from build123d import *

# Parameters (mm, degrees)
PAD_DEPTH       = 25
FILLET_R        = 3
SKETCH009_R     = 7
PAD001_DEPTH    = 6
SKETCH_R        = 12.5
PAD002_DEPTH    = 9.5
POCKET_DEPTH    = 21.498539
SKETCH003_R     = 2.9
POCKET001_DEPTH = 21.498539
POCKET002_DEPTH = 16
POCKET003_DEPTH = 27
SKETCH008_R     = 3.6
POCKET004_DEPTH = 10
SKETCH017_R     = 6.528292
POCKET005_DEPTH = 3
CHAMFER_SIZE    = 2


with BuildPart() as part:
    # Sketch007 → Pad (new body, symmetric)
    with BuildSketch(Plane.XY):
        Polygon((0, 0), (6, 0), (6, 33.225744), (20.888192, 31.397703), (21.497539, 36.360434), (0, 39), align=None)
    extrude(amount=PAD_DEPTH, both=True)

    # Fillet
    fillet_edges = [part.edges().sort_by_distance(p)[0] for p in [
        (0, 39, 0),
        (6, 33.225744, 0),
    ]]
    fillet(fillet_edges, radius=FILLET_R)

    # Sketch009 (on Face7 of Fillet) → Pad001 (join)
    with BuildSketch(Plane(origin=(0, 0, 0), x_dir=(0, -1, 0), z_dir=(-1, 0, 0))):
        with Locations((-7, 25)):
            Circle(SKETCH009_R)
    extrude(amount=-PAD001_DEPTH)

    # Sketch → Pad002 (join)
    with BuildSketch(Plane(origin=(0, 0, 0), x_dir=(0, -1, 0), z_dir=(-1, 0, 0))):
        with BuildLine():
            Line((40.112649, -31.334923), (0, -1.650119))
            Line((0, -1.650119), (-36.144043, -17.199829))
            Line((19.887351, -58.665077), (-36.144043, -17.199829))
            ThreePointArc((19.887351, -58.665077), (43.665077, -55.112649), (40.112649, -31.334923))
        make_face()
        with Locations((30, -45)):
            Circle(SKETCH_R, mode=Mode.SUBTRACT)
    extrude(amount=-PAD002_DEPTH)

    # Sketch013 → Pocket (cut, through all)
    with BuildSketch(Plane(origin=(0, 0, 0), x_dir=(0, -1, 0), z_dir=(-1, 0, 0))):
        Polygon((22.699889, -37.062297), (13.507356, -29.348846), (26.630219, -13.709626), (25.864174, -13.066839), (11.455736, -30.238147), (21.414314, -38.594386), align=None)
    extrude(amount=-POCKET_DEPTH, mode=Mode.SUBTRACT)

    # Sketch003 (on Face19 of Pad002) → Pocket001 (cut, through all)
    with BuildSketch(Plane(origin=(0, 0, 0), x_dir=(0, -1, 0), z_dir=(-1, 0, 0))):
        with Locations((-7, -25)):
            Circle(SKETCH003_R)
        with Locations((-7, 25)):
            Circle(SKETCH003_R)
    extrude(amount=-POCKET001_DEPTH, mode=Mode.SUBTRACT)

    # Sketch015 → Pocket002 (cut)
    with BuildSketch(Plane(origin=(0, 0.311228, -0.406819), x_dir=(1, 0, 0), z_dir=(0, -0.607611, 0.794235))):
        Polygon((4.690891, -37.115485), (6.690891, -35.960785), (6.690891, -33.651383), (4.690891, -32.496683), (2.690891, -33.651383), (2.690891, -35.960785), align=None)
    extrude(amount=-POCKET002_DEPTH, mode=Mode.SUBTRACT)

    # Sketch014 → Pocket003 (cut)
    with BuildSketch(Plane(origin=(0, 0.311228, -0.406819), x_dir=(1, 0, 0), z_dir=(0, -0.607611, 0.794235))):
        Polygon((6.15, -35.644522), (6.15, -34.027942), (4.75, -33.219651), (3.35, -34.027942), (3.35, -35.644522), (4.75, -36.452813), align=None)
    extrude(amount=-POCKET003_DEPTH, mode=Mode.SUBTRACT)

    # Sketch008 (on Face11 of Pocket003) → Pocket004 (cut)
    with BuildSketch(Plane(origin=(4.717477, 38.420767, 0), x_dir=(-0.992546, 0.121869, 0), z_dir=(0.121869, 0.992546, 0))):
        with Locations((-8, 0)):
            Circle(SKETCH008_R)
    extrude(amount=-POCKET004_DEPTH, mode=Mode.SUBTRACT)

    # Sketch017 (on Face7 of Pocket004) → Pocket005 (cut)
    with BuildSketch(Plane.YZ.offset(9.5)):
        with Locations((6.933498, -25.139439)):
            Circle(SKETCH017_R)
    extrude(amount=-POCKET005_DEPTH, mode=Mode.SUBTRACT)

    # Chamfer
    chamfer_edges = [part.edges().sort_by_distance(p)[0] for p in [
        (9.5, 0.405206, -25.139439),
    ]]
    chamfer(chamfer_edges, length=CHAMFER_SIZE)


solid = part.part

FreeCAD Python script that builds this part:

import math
import FreeCAD as App
import Part
import Sketcher

V = App.Vector
Q = App.Units.Quantity


def edges_at(feature, points):
    """Names of the edges that pass closest to the given points."""
    edges = feature.Shape.Edges
    near = lambda p: min(range(len(edges)), key=lambda i: edges[i].distToShape(Part.Vertex(*p))[0])
    return sorted({f"Edge{near(p) + 1}" for p in points})


def add_polygon(sketch, points):
    """Adds a closed chain of lines whose ends are joined by coincident constraints."""
    first, n = sketch.GeometryCount, len(points)
    for a, b in zip(points, points[1:] + points[:1]):
        sketch.addGeometry(Part.LineSegment(App.Vector(*a, 0), App.Vector(*b, 0)), False)
    for i in range(n):
        sketch.addConstraint(Sketcher.Constraint("Coincident", first + i, 2, first + (i + 1) % n, 1))

doc = App.newDocument("Part")
params = doc.addObject("Spreadsheet::Sheet", "Params")
for row, (alias, value) in enumerate([
    ("sketch1_width", "6 mm"),
    ("sketch1_height", "39 mm"),
    ("sketch1_length", "15 mm"),
    ("sketch1_length2", "5 mm"),
    ("pad1_length", "50 mm"),
    ("fillet_radius", "3 mm"),
    ("sketch2_diameter", "14 mm"),
    ("pad2_length", "6 mm"),
    ("sketch3_diameter", "25 mm"),
    ("sketch3_radius", "17 mm"),
    ("pad3_length", "9.5 mm"),
    ("sketch4_length", "12 mm"),
    ("sketch4_length2", "1 mm"),
    ("sketch4_length3", "2 mm"),
    ("sketch5_diameter", "5.8 mm"),
    ("pocket3_length", "16 mm"),
    ("pocket4_length", "27 mm"),
    ("sketch8_diameter", "7.2 mm"),
    ("pocket5_length", "10 mm"),
    ("pocket6_length", "3 mm"),
    ("chamfer_size", "2 mm"),
], start=1):
    params.set(f"A{row}", alias)
    params.set(f"B{row}", "=" + value)
    params.setAlias(f"B{row}", alias)

body = doc.addObject("PartDesign::Body", "Body")

# Sketch on XY plane
sketch1 = body.newObject("Sketcher::SketchObject", "Sketch")
sketch1.AttachmentSupport = (doc.getObject("XY_Plane"), [""])
sketch1.MapMode = "FlatFace"
add_polygon(sketch1, [(0, 0), (6, 0), (6, 33.225744), (20.888192, 31.397703), (21.497539, 36.360434), (0, 39)])  # lines 0-5
sketch1.addConstraint(Sketcher.Constraint("Horizontal", 0))
sketch1.addConstraint(Sketcher.Constraint("Vertical", 1))
sketch1.addConstraint(Sketcher.Constraint("Vertical", 5))
sketch1.addConstraint(Sketcher.Constraint("Coincident", 5, 2, -1, 1))
sketch1.addConstraint(Sketcher.Constraint("Perpendicular", 2, 3))
sketch1.addConstraint(Sketcher.Constraint("Perpendicular", 3, 4))
sketch1.addConstraint(Sketcher.Constraint("DistanceX", 0, 1, 0, 2, Q("6 mm")))
sketch1.addConstraint(Sketcher.Constraint("DistanceY", 5, 2, 5, 1, Q("39 mm")))
sketch1.addConstraint(Sketcher.Constraint("Angle", 2, Q("-7.000003 deg")))
sketch1.addConstraint(Sketcher.Constraint("Distance", 2, Q("15 mm")))
sketch1.addConstraint(Sketcher.Constraint("Distance", 3, Q("5 mm")))
sketch1.setExpression("Constraints[12]", "Params.sketch1_width")
sketch1.setExpression("Constraints[13]", "Params.sketch1_height")
sketch1.setExpression("Constraints[15]", "Params.sketch1_length")
sketch1.setExpression("Constraints[16]", "Params.sketch1_length2")
pad1 = body.newObject("PartDesign::Pad", "Pad")
pad1.Profile = sketch1
pad1.setExpression("Length", "Params.pad1_length")
pad1.Midplane = True
doc.recompute()

fillet = body.newObject("PartDesign::Fillet", "Fillet")
fillet.Base = (pad1, edges_at(pad1, [(0, 39, 0), (6, 33.226, 0)]))
fillet.setExpression("Radius", "Params.fillet_radius")

# Sketch on YZ plane
sketch2 = body.newObject("Sketcher::SketchObject", "Sketch001")
sketch2.AttachmentSupport = (doc.getObject("YZ_Plane"), [""])
sketch2.MapMode = "FlatFace"
sketch2.addGeometry(Part.Circle(V(7, 25, 0), V(0, 0, 1), 7), False)
sketch2.addConstraint(Sketcher.Constraint("Diameter", 0, Q("14 mm")))
sketch2.addConstraint(Sketcher.Constraint("DistanceX", -1, 1, 0, 3, Q("7 mm")))
sketch2.addConstraint(Sketcher.Constraint("DistanceY", -1, 1, 0, 3, Q("25 mm")))
sketch2.setExpression("Constraints[0]", "Params.sketch2_diameter")
pad2 = body.newObject("PartDesign::Pad", "Pad001")
pad2.Profile = sketch2
pad2.setExpression("Length", "Params.pad2_length")

# Sketch on YZ plane
sketch3 = body.newObject("Sketcher::SketchObject", "Sketch002")
sketch3.AttachmentSupport = (doc.getObject("YZ_Plane"), [""])
sketch3.MapMode = "FlatFace"
sketch3.addGeometry(Part.LineSegment(V(-40.112649, -31.334923, 0), V(0, -1.650119, 0)), False)
sketch3.addGeometry(Part.LineSegment(V(0, -1.650119, 0), V(36.144043, -17.199829, 0)), False)
sketch3.addGeometry(Part.LineSegment(V(36.144043, -17.199829, 0), V(-19.887351, -58.665077, 0)), False)
sketch3.addGeometry(Part.ArcOfCircle(Part.Circle(V(-30, -45, 0), V(0, 0, 1), 17), math.radians(126.502774), math.radians(306.502774)), False)
sketch3.addGeometry(Part.Circle(V(-30, -45, 0), V(0, 0, 1), 12.5), False)
sketch3.addConstraint(Sketcher.Constraint("Coincident", 0, 2, 1, 1))
sketch3.addConstraint(Sketcher.Constraint("Coincident", 1, 2, 2, 1))
sketch3.addConstraint(Sketcher.Constraint("Tangent", 2, 2, 3, 2))
sketch3.addConstraint(Sketcher.Constraint("Tangent", 3, 1, 0, 1))
sketch3.addConstraint(Sketcher.Constraint("Coincident", 4, 3, 3, 3))
sketch3.addConstraint(Sketcher.Constraint("PointOnObject", 0, 2, -2))
sketch3.addConstraint(Sketcher.Constraint("Parallel", 0, 2))
sketch3.addConstraint(Sketcher.Constraint("Diameter", 4, Q("25 mm")))
sketch3.addConstraint(Sketcher.Constraint("Radius", 3, Q("17 mm")))
sketch3.addConstraint(Sketcher.Constraint("DistanceX", 3, 3, -1, 1, Q("30 mm")))
sketch3.addConstraint(Sketcher.Constraint("DistanceY", 3, 3, -1, 1, Q("45 mm")))
sketch3.addConstraint(Sketcher.Constraint("DistanceX", 3, 1, 2, 2, Q("20.225298 mm")))
sketch3.addConstraint(Sketcher.Constraint("DistanceY", 1, 2, -1, 1, Q("17.199829 mm")))
sketch3.setExpression("Constraints[7]", "Params.sketch3_diameter")
sketch3.setExpression("Constraints[8]", "Params.sketch3_radius")
pad3 = body.newObject("PartDesign::Pad", "Pad002")
pad3.Profile = sketch3
pad3.setExpression("Length", "Params.pad3_length")

# Sketch on YZ plane
sketch4 = body.newObject("Sketcher::SketchObject", "Sketch003")
sketch4.AttachmentSupport = (doc.getObject("YZ_Plane"), [""])
sketch4.MapMode = "FlatFace"
add_polygon(sketch4, [(-22.699889, -37.062297), (-13.507356, -29.348846), (-26.630219, -13.709626), (-25.864174, -13.066839), (-11.455736, -30.238147), (-21.414314, -38.594386)])  # lines 0-5
sketch4.addConstraint(Sketcher.Constraint("Perpendicular", 0, 1))
sketch4.addConstraint(Sketcher.Constraint("Perpendicular", 1, 2))
sketch4.addConstraint(Sketcher.Constraint("Perpendicular", 2, 3))
sketch4.addConstraint(Sketcher.Constraint("Perpendicular", 3, 4))
sketch4.addConstraint(Sketcher.Constraint("Perpendicular", 4, 5))
sketch4.addConstraint(Sketcher.Constraint("Angle", 0, Q("40 deg")))
sketch4.addConstraint(Sketcher.Constraint("Distance", 0, Q("12 mm")))
sketch4.addConstraint(Sketcher.Constraint("Distance", 2, Q("1 mm")))
sketch4.addConstraint(Sketcher.Constraint("Distance", 5, Q("2 mm")))
sketch4.addConstraint(Sketcher.Constraint("Distance", 1, Q("20.415551 mm")))
sketch4.addConstraint(Sketcher.Constraint("DistanceX", 1, 2, -1, 1, Q("26.630219 mm")))
sketch4.addConstraint(Sketcher.Constraint("DistanceY", 2, 2, -1, 1, Q("13.066839 mm")))
sketch4.setExpression("Constraints[12]", "Params.sketch4_length")
sketch4.setExpression("Constraints[13]", "Params.sketch4_length2")
sketch4.setExpression("Constraints[14]", "Params.sketch4_length3")
pocket1 = body.newObject("PartDesign::Pocket", "Pocket")
pocket1.Profile = sketch4
pocket1.Type = "ThroughAll"
pocket1.Reversed = True

# Sketch on YZ plane
sketch5 = body.newObject("Sketcher::SketchObject", "Sketch004")
sketch5.AttachmentSupport = (doc.getObject("YZ_Plane"), [""])
sketch5.MapMode = "FlatFace"
sketch5.addGeometry(Part.Circle(V(7, -25, 0), V(0, 0, 1), 2.9), False)
sketch5.addGeometry(Part.Circle(V(7, 25, 0), V(0, 0, 1), 2.9), False)
sketch5.addConstraint(Sketcher.Constraint("Equal", 0, 1))
sketch5.addConstraint(Sketcher.Constraint("Symmetric", 0, 3, 1, 3, -1))
sketch5.addConstraint(Sketcher.Constraint("Diameter", 0, Q("5.8 mm")))
sketch5.addConstraint(Sketcher.Constraint("DistanceX", -1, 1, 0, 3, Q("7 mm")))
sketch5.addConstraint(Sketcher.Constraint("DistanceY", 0, 3, -1, 1, Q("25 mm")))
sketch5.setExpression("Constraints[2]", "Params.sketch5_diameter")
pocket2 = body.newObject("PartDesign::Pocket", "Pocket001")
pocket2.Profile = sketch5
pocket2.Type = "ThroughAll"
pocket2.Reversed = True

# Sketch on an angled plane
sketch6 = body.newObject("Sketcher::SketchObject", "Sketch005")
sketch6.Placement = App.Placement(V(0, 0.311228, -0.406819), App.Rotation(V(1, 0, 0), V(0, 0.794234856, 0.60761089), V(0, -0.60761089, 0.794234856), "ZXY"))
add_polygon(sketch6, [(4.690891, -37.115485), (6.690891, -35.960785), (6.690891, -33.651383), (4.690891, -32.496683), (2.690891, -33.651383), (2.690891, -35.960785)])  # lines 0-5
sketch6.addConstraint(Sketcher.Constraint("Vertical", 1))
sketch6.addConstraint(Sketcher.Constraint("Vertical", 4))
sketch6.addConstraint(Sketcher.Constraint("Parallel", 0, 3))
sketch6.addConstraint(Sketcher.Constraint("Parallel", 2, 5))
sketch6.addConstraint(Sketcher.Constraint("Horizontal", 1, 2, 3, 2))
sketch6.addConstraint(Sketcher.Constraint("Horizontal", 0, 2, 4, 2))
sketch6.addConstraint(Sketcher.Constraint("Vertical", 2, 2, 5, 2))
sketch6.addConstraint(Sketcher.Constraint("Angle", 0, Q("29.999988 deg")))
sketch6.addConstraint(Sketcher.Constraint("DistanceX", 2, 2, 1, 2, Q("2 mm")))
sketch6.addConstraint(Sketcher.Constraint("DistanceY", 1, 1, 1, 2, Q("2.309402 mm")))
sketch6.addConstraint(Sketcher.Constraint("DistanceX", -1, 1, 0, 2, Q("6.690891 mm")))
sketch6.addConstraint(Sketcher.Constraint("DistanceY", 0, 2, -1, 1, Q("35.960785 mm")))
pocket3 = body.newObject("PartDesign::Pocket", "Pocket002")
pocket3.Profile = sketch6
pocket3.setExpression("Length", "Params.pocket3_length")

# Sketch on an angled plane
sketch7 = body.newObject("Sketcher::SketchObject", "Sketch006")
sketch7.Placement = App.Placement(V(0, 0.311228, -0.406819), App.Rotation(V(1, 0, 0), V(0, 0.794234856, 0.60761089), V(0, -0.60761089, 0.794234856), "ZXY"))
add_polygon(sketch7, [(6.15, -35.644522), (6.15, -34.027942), (4.75, -33.219651), (3.35, -34.027942), (3.35, -35.644522), (4.75, -36.452813)])  # lines 0-5
sketch7.addConstraint(Sketcher.Constraint("Vertical", 0))
sketch7.addConstraint(Sketcher.Constraint("Vertical", 3))
sketch7.addConstraint(Sketcher.Constraint("Parallel", 1, 4))
sketch7.addConstraint(Sketcher.Constraint("Parallel", 2, 5))
sketch7.addConstraint(Sketcher.Constraint("Horizontal", 0, 2, 2, 2))
sketch7.addConstraint(Sketcher.Constraint("Horizontal", 3, 2, 5, 2))
sketch7.addConstraint(Sketcher.Constraint("Vertical", 1, 2, 4, 2))
sketch7.addConstraint(Sketcher.Constraint("Angle", 1, Q("149.999981 deg")))
sketch7.addConstraint(Sketcher.Constraint("DistanceX", 1, 2, 0, 2, Q("1.4 mm")))
sketch7.addConstraint(Sketcher.Constraint("DistanceX", -1, 1, 0, 2, Q("6.15 mm")))
sketch7.addConstraint(Sketcher.Constraint("DistanceY", 0, 1, 0, 2, Q("1.61658 mm")))
sketch7.addConstraint(Sketcher.Constraint("DistanceY", 1, 2, -1, 1, Q("33.219651 mm")))
pocket4 = body.newObject("PartDesign::Pocket", "Pocket003")
pocket4.Profile = sketch7
pocket4.setExpression("Length", "Params.pocket4_length")

# Sketch on an angled plane
sketch8 = body.newObject("Sketcher::SketchObject", "Sketch007")
sketch8.Placement = App.Placement(V(4.717477, 38.420767, 0), App.Rotation(V(-0.992546191, 0.121869023, 0), V(0, 0, 1), V(0.121869023, 0.992546191, 0), "ZXY"))
sketch8.addGeometry(Part.Circle(V(-8, 0, 0), V(0, 0, 1), 3.6), False)
sketch8.addConstraint(Sketcher.Constraint("PointOnObject", 0, 3, -1))
sketch8.addConstraint(Sketcher.Constraint("Diameter", 0, Q("7.2 mm")))
sketch8.addConstraint(Sketcher.Constraint("DistanceX", 0, 3, -1, 1, Q("8 mm")))
sketch8.setExpression("Constraints[1]", "Params.sketch8_diameter")
pocket5 = body.newObject("PartDesign::Pocket", "Pocket004")
pocket5.Profile = sketch8
pocket5.setExpression("Length", "Params.pocket5_length")

# Sketch on YZ plane
sketch9 = body.newObject("Sketcher::SketchObject", "Sketch008")
sketch9.AttachmentSupport = (doc.getObject("YZ_Plane"), [""])
sketch9.MapMode = "FlatFace"
sketch9.AttachmentOffset = App.Placement(V(0, 0, 9.5), App.Rotation())
sketch9.addGeometry(Part.Circle(V(6.933498, -25.139439, 0), V(0, 0, 1), 6.528292), False)
sketch9.addConstraint(Sketcher.Constraint("Diameter", 0, Q("13.056584 mm")))
sketch9.addConstraint(Sketcher.Constraint("DistanceY", 0, 3, -1, 1, Q("25.139439 mm")))
sketch9.addConstraint(Sketcher.Constraint("DistanceX", -1, 1, 0, 3, Q("6.933498 mm")))
pocket6 = body.newObject("PartDesign::Pocket", "Pocket005")
pocket6.Profile = sketch9
pocket6.setExpression("Length", "Params.pocket6_length")
doc.recompute()

chamfer = body.newObject("PartDesign::Chamfer", "Chamfer")
chamfer.Base = (pocket6, edges_at(pocket6, [(9.5, 0.405, -25.139)]))
chamfer.setExpression("Size", "Params.chamfer_size")

doc.recompute()
